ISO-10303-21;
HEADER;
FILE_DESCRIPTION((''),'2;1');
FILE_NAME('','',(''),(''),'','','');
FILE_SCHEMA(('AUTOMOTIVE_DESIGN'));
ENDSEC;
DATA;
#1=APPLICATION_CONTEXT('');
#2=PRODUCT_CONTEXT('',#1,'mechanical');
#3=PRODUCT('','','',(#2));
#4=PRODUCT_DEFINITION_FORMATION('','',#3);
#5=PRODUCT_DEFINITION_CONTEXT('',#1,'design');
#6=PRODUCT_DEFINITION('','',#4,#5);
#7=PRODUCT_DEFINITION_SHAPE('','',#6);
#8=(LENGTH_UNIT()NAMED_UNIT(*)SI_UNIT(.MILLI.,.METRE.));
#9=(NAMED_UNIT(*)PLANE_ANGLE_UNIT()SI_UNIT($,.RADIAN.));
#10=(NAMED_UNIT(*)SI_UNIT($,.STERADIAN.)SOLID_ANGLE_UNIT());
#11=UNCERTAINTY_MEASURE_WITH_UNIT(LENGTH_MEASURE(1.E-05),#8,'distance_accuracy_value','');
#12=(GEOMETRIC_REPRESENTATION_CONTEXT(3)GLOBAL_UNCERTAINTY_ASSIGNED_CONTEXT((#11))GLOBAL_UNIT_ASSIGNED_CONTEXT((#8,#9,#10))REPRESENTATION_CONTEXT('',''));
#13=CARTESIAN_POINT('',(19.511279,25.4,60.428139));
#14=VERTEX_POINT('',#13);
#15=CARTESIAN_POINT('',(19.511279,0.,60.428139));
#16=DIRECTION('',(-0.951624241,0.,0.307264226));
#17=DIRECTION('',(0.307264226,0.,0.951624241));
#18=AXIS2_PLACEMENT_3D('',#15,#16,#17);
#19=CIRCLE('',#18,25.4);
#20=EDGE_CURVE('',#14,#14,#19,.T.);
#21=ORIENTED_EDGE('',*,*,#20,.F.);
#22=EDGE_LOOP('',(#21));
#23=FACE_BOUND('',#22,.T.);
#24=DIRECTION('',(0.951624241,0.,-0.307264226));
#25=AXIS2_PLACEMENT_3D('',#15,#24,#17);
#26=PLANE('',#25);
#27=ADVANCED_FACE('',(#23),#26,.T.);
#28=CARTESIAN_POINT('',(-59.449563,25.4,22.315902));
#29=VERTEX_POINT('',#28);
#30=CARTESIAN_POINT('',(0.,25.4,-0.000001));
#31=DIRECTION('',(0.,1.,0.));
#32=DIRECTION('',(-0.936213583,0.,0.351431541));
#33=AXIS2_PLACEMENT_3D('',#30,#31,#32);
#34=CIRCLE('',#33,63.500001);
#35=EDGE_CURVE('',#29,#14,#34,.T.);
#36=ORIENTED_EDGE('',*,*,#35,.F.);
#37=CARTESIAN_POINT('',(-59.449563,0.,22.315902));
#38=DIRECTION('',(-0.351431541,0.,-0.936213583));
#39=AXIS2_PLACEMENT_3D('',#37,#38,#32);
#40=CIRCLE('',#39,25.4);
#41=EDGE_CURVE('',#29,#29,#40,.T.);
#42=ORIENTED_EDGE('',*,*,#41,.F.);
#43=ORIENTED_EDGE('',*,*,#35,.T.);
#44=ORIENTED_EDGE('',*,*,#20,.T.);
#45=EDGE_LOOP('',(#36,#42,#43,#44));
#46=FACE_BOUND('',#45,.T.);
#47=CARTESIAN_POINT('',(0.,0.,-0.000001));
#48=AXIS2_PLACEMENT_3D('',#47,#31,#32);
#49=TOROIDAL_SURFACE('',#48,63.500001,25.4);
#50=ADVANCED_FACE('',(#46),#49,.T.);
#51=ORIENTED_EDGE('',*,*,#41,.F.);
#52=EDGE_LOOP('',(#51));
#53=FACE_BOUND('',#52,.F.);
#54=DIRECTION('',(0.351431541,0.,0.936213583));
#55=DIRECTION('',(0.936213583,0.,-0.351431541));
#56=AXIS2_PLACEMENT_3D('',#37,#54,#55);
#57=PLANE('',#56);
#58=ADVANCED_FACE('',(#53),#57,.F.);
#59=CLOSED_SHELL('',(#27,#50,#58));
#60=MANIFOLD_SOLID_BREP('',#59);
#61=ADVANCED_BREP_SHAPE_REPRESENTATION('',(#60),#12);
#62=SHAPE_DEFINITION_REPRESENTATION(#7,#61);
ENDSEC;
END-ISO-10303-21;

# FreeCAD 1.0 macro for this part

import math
import FreeCAD as App
import Part
import Sketcher
from FreeCAD import Vector
Q = App.Units.Quantity

doc = App.newDocument("Part")
body = doc.addObject("PartDesign::Body", "Body")

sketch1 = body.newObject("Sketcher::SketchObject", "Sketch")
sketch1.AttachmentSupport = (doc.getObject("YZ_Plane"), [""])
sketch1.MapMode = "FlatFace"
sketch1.addGeometry(Part.Circle(Vector(0, 64, 0), Vector(0, 0, 1), 25), False)
sketch1.addConstraint(Sketcher.Constraint("PointOnObject", 0, 3, -2))
sketch1.addConstraint(Sketcher.Constraint("Diameter", 0, Q("2 in")))
sketch1.addConstraint(Sketcher.Constraint("DistanceY", -1, 1, 0, 3, Q("2.5 in")))

sketch2 = body.newObject("Sketcher::SketchObject", "Sketch001")
sketch2.AttachmentSupport = (doc.getObject("XZ_Plane"), [""])
sketch2.MapMode = "FlatFace"
sketch2.addGeometry(Part.ArcOfCircle(Part.Circle(Vector(0, 0, 0), Vector(0, 0, 1), 64), math.radians(72), math.radians(159)), False)
sketch2.addConstraint(Sketcher.Constraint("Coincident", 0, 3, -1, 1))
sketch2.addConstraint(Sketcher.Constraint("Radius", 0, Q("2.5 in")))
sketch2.addConstraint(Sketcher.Constraint("DistanceY", -1, 1, 0, 2, Q("22.315902 mm")))
sketch2.addConstraint(Sketcher.Constraint("DistanceX", -1, 1, 0, 1, Q("19.511279 mm")))
doc.recompute()

additivepipe = body.newObject("PartDesign::AdditivePipe", "AdditivePipe")
additivepipe.Profile = sketch1
additivepipe.Spine = (sketch2, ["Edge1"])

doc.recompute()
